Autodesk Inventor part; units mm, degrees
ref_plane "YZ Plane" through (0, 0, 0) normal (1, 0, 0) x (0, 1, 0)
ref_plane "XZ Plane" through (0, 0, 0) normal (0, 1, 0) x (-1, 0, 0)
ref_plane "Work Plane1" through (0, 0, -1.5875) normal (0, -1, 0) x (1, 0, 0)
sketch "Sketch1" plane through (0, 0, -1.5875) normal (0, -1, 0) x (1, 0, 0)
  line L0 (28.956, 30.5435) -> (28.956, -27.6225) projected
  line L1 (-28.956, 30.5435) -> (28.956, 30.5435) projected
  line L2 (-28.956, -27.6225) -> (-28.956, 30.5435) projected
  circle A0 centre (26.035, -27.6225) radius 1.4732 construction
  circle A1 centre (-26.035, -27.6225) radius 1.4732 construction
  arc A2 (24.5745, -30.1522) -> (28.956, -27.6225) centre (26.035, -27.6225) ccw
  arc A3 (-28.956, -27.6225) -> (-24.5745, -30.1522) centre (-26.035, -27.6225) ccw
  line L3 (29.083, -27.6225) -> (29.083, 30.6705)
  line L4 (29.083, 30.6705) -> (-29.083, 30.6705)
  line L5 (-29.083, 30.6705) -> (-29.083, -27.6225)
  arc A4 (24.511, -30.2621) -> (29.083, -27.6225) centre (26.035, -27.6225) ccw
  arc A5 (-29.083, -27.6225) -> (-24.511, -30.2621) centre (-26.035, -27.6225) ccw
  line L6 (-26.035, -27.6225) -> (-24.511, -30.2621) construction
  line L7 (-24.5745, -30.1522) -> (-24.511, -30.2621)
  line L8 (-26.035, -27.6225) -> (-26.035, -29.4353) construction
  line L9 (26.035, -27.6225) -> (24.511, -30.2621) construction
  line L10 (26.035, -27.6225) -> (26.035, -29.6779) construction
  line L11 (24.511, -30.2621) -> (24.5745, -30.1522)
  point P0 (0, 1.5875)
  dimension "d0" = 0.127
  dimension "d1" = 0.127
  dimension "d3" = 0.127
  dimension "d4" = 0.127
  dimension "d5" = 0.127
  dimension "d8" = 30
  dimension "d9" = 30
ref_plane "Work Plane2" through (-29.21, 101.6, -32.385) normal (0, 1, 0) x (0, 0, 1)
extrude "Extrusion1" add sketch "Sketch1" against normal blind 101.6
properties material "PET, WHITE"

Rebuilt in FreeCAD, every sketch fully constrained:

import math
import FreeCAD as App
import Part
import Sketcher
Q = App.Units.Quantity

doc = App.newDocument("Part")
body = doc.addObject("PartDesign::Body", "Body")

# Sketch on XZ plane
sketch1 = doc.addObject("Sketcher::SketchObject", "Sketch")
body.addObject(sketch1)
sketch1.AttachmentSupport = (doc.XZ_Plane, [""])
sketch1.MapMode = "FlatFace"
sketch1.addGeometry(Part.LineSegment(App.Vector(-28.96, 28.96, 0), App.Vector(28.96, 28.96, 0)), False)
sketch1.addGeometry(Part.LineSegment(App.Vector(28.96, 28.96, 0), App.Vector(28.96, -29.21, 0)), False)
sketch1.addGeometry(Part.ArcOfCircle(Part.Circle(App.Vector(26.04, -29.21, 0), App.Vector(0, 0, 1), 2.92), math.radians(-120), math.radians(0)), False)
sketch1.addGeometry(Part.LineSegment(App.Vector(24.57, -31.74, 0), App.Vector(24.51, -31.85, 0)), False)
sketch1.addGeometry(Part.ArcOfCircle(Part.Circle(App.Vector(26.04, -29.21, 0), App.Vector(0, 0, 1), 3.05), math.radians(-120), math.radians(0)), False)
sketch1.addGeometry(Part.LineSegment(App.Vector(29.08, -29.21, 0), App.Vector(29.08, 29.08, 0)), False)
sketch1.addGeometry(Part.LineSegment(App.Vector(29.08, 29.08, 0), App.Vector(-29.08, 29.08, 0)), False)
sketch1.addGeometry(Part.LineSegment(App.Vector(-29.08, 29.08, 0), App.Vector(-29.08, -29.21, 0)), False)
sketch1.addGeometry(Part.ArcOfCircle(Part.Circle(App.Vector(-26.04, -29.21, 0), App.Vector(0, 0, 1), 3.05), math.radians(180), math.radians(300)), False)
sketch1.addGeometry(Part.LineSegment(App.Vector(-24.51, -31.85, 0), App.Vector(-24.57, -31.74, 0)), False)
sketch1.addGeometry(Part.ArcOfCircle(Part.Circle(App.Vector(-26.04, -29.21, 0), App.Vector(0, 0, 1), 2.92), math.radians(180), math.radians(300)), False)
sketch1.addGeometry(Part.LineSegment(App.Vector(-28.96, -29.21, 0), App.Vector(-28.96, 28.96, 0)), False)
sketch1.addConstraint(Sketcher.Constraint("Coincident", 0, 2, 1, 1))
sketch1.addConstraint(Sketcher.Constraint("Tangent", 1, 2, 2, 2))
sketch1.addConstraint(Sketcher.Constraint("Coincident", 2, 1, 3, 1))
sketch1.addConstraint(Sketcher.Constraint("Coincident", 3, 2, 4, 1))
sketch1.addConstraint(Sketcher.Constraint("Tangent", 4, 2, 5, 1))
sketch1.addConstraint(Sketcher.Constraint("Coincident", 5, 2, 6, 1))
sketch1.addConstraint(Sketcher.Constraint("Coincident", 6, 2, 7, 1))
sketch1.addConstraint(Sketcher.Constraint("Tangent", 7, 2, 8, 1))
sketch1.addConstraint(Sketcher.Constraint("Coincident", 8, 2, 9, 1))
sketch1.addConstraint(Sketcher.Constraint("Coincident", 9, 2, 10, 2))
sketch1.addConstraint(Sketcher.Constraint("Tangent", 10, 1, 11, 1))
sketch1.addConstraint(Sketcher.Constraint("Coincident", 11, 2, 0, 1))
sketch1.addConstraint(Sketcher.Constraint("Horizontal", 0))
sketch1.addConstraint(Sketcher.Constraint("Vertical", 1))
sketch1.addConstraint(Sketcher.Constraint("Vertical", 5))
sketch1.addConstraint(Sketcher.Constraint("Horizontal", 6))
sketch1.addConstraint(Sketcher.Constraint("Vertical", 7))
sketch1.addConstraint(Sketcher.Constraint("Vertical", 11))
sketch1.addConstraint(Sketcher.Constraint("Coincident", 4, 3, 2, 3))
sketch1.addConstraint(Sketcher.Constraint("Coincident", 10, 3, 8, 3))
sketch1.addConstraint(Sketcher.Constraint("Equal", 4, 8))
sketch1.addConstraint(Sketcher.Constraint("Equal", 2, 10))
sketch1.addConstraint(Sketcher.Constraint("Symmetric", 2, 3, 8, 3, -2))
sketch1.addConstraint(Sketcher.Constraint("Horizontal", 3, 2, 8, 2))
sketch1.addConstraint(Sketcher.Constraint("Horizontal", 2, 1, 9, 2))
sketch1.addConstraint(Sketcher.Constraint("Equal", 6, 1))
sketch1.addConstraint(Sketcher.Constraint("Radius", 4, Q("0.12 in")))
sketch1.addConstraint(Sketcher.Constraint("Distance", 3, Q("0.005 in")))
sketch1.addConstraint(Sketcher.Constraint("DistanceY", 0, 2, 5, 2, Q("0.005 in")))
sketch1.addConstraint(Sketcher.Constraint("DistanceX", 0, 1, 0, 2, Q("2.28 in")))
sketch1.addConstraint(Sketcher.Constraint("DistanceY", 2, 3, -1, 1, Q("1.15 in")))
sketch1.addConstraint(Sketcher.Constraint("Angle", 3, Q("-120.0192 deg")))
sketch1.addConstraint(Sketcher.Constraint("DistanceX", 3, 2, 2, 3, Q("0.06 in")))
pad1 = doc.addObject("PartDesign::Pad", "Pad")
body.addObject(pad1)
pad1.Profile = sketch1
pad1.Length = Q("4 in")
pad1.Reversed = True

doc.recompute()
